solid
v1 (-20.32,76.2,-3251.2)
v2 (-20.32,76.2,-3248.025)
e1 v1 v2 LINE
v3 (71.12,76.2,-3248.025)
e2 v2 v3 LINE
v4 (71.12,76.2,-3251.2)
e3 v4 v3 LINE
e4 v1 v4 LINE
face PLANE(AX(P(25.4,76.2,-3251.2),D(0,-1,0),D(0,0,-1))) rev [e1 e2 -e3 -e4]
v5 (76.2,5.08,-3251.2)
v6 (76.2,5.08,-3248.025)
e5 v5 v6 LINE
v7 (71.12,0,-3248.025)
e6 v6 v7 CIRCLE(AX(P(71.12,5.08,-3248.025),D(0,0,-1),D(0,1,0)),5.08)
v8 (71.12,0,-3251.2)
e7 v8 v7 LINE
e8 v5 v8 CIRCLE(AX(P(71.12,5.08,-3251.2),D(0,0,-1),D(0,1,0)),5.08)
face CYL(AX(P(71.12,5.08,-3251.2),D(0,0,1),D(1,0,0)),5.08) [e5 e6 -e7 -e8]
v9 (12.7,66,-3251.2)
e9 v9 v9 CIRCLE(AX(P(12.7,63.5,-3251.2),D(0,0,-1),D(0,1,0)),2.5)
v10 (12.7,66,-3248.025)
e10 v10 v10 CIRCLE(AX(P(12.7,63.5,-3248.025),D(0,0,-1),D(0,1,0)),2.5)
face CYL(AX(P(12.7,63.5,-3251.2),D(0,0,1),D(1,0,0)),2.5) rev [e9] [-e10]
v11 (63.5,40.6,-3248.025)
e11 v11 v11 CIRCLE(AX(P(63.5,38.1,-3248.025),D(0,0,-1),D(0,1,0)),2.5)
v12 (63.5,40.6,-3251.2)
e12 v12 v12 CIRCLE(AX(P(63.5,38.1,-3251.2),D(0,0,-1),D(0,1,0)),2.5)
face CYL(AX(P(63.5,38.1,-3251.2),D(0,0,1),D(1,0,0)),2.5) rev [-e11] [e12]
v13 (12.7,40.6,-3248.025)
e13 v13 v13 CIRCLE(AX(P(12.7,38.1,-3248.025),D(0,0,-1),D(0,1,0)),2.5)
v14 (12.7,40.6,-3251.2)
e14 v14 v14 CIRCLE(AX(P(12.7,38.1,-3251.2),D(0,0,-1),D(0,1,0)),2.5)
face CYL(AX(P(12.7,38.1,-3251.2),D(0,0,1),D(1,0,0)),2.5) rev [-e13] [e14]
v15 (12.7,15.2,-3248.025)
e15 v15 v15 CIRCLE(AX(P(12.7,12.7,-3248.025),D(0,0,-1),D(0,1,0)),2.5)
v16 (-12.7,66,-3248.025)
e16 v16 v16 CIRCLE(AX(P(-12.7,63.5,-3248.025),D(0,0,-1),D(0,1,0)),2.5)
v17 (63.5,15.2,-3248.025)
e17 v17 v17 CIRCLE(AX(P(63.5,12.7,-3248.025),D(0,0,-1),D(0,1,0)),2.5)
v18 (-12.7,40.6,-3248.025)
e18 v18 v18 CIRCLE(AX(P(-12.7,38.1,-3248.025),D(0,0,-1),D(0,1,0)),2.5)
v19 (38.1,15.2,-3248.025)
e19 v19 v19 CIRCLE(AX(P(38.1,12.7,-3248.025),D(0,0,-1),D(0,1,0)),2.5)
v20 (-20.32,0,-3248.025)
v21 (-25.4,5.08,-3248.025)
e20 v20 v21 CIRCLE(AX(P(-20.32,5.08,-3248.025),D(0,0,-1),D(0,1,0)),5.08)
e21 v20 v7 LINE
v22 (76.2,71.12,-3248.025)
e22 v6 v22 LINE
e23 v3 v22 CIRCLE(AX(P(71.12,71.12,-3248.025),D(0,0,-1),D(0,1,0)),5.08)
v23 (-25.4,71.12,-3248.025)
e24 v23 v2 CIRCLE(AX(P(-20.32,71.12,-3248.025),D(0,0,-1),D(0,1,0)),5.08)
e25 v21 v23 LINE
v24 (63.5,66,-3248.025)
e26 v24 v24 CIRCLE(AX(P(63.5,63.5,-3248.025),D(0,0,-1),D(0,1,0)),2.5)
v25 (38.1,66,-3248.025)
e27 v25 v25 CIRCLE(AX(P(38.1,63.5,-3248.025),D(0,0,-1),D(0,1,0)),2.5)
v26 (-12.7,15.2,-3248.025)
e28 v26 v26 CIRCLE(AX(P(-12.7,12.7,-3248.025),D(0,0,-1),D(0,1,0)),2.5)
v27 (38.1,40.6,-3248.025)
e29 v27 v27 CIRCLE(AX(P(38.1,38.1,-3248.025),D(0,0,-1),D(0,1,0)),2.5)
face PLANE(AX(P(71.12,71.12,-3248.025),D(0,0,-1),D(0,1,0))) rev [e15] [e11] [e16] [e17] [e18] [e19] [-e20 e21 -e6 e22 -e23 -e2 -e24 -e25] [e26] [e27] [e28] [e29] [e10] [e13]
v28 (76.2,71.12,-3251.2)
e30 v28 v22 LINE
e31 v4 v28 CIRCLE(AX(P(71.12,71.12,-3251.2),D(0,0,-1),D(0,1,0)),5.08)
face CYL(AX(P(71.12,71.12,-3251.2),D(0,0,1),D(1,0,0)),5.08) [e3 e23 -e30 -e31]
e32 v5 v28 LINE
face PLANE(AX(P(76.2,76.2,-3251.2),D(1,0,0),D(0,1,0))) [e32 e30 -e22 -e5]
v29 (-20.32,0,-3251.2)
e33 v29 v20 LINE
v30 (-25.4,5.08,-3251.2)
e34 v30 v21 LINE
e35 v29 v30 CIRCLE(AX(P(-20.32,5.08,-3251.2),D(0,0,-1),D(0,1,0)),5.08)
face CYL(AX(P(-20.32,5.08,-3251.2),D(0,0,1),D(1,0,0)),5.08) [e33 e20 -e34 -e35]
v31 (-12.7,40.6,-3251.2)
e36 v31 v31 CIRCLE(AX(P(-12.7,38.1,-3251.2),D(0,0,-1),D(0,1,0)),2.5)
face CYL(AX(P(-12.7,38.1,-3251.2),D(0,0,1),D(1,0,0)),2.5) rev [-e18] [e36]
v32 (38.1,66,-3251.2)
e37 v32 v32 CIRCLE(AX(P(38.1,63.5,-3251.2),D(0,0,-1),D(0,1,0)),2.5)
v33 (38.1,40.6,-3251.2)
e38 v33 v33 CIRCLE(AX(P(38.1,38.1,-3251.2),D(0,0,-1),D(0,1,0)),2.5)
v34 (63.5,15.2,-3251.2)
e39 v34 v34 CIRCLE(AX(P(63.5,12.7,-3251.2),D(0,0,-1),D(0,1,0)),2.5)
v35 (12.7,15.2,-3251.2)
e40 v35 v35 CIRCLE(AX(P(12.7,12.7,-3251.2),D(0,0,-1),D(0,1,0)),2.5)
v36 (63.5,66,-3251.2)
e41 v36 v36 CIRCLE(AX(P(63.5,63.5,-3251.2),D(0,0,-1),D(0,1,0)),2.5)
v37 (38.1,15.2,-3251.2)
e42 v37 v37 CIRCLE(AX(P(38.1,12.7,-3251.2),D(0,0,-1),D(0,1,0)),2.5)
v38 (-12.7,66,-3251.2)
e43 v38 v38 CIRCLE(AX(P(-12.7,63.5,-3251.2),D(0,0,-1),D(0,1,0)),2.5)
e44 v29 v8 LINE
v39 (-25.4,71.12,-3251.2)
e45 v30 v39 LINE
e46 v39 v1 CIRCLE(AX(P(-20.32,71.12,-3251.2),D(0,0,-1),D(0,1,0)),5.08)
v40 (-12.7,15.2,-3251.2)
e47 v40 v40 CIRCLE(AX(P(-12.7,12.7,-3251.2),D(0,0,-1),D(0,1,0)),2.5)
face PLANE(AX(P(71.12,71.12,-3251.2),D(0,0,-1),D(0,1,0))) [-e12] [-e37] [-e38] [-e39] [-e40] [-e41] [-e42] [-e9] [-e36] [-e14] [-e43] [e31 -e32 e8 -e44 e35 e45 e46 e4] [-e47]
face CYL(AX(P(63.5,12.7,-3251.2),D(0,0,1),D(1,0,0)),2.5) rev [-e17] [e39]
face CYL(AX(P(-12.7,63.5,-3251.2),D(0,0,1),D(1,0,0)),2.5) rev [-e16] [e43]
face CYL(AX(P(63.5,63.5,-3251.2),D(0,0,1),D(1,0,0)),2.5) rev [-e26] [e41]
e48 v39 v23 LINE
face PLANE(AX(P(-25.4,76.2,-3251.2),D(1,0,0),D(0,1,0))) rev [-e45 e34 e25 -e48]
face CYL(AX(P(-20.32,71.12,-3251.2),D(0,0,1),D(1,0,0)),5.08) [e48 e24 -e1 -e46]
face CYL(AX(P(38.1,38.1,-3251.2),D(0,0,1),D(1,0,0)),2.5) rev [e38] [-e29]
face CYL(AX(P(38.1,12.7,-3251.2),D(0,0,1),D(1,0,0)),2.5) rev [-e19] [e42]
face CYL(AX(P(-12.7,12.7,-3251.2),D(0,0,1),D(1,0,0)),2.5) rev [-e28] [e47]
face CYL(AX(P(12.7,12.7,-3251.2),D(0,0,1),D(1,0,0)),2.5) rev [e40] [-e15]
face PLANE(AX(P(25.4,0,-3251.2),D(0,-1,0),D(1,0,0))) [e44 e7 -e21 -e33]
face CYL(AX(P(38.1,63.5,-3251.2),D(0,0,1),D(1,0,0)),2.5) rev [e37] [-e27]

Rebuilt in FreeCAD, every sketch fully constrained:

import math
import FreeCAD as App
import Part
import Sketcher
from FreeCAD import Vector
Q = App.Units.Quantity

doc = App.newDocument("Part")
body = doc.addObject("PartDesign::Body", "Body")

# Sketch on XY plane
sketch1 = body.newObject("Sketcher::SketchObject", "Sketch")
sketch1.AttachmentSupport = (doc.getObject("XY_Plane"), [""])
sketch1.MapMode = "FlatFace"
sketch1.AttachmentOffset = App.Placement(Vector(0, 0, -127.875 * 25.4), App.Rotation())
sketch1.addGeometry([
    Part.LineSegment(Vector(71.1, 76.2, 0), Vector(-20.3, 76.2, 0)),  # 0
    Part.ArcOfCircle(Part.Circle(Vector(-20.3, 71.1, 0), Vector(0, 0, 1), 5.1), math.radians(90), math.radians(180)),  # 1
    Part.LineSegment(Vector(-25.4, 71.1, 0), Vector(-25.4, 5.1, 0)),  # 2
    Part.ArcOfCircle(Part.Circle(Vector(-20.3, 5.1, 0), Vector(0, 0, 1), 5.1), math.radians(-180), math.radians(-90)),  # 3
    Part.LineSegment(Vector(-20.3, 0, 0), Vector(71.1, 0, 0)),  # 4
    Part.ArcOfCircle(Part.Circle(Vector(71.1, 5.1, 0), Vector(0, 0, 1), 5.1), math.radians(-90), math.radians(0)),  # 5
    Part.LineSegment(Vector(76.2, 5.1, 0), Vector(76.2, 71.1, 0)),  # 6
    Part.ArcOfCircle(Part.Circle(Vector(71.1, 71.1, 0), Vector(0, 0, 1), 5.1), math.radians(0), math.radians(90)),  # 7
    Part.Circle(Vector(-12.7, 12.7, 0), Vector(0, 0, 1), 2.5),  # 8
    Part.Circle(Vector(12.7, 12.7, 0), Vector(0, 0, 1), 2.5),  # 9
    Part.Circle(Vector(38.1, 12.7, 0), Vector(0, 0, 1), 2.5),  # 10
    Part.Circle(Vector(63.5, 12.7, 0), Vector(0, 0, 1), 2.5),  # 11
    Part.Circle(Vector(-12.7, 38.1, 0), Vector(0, 0, 1), 2.5),  # 12
    Part.Circle(Vector(12.7, 38.1, 0), Vector(0, 0, 1), 2.5),  # 13
    Part.Circle(Vector(-12.7, 63.5, 0), Vector(0, 0, 1), 2.5),  # 14
    Part.Circle(Vector(12.7, 63.5, 0), Vector(0, 0, 1), 2.5),  # 15
    Part.Circle(Vector(38.1, 38.1, 0), Vector(0, 0, 1), 2.5),  # 16
    Part.Circle(Vector(63.5, 38.1, 0), Vector(0, 0, 1), 2.5),  # 17
    Part.Circle(Vector(38.1, 63.5, 0), Vector(0, 0, 1), 2.5),  # 18
    Part.Circle(Vector(63.5, 63.5, 0), Vector(0, 0, 1), 2.5),  # 19
], False)
sketch1.addConstraint([
    Sketcher.Constraint("Tangent", 0, 2, 1, 1),
    Sketcher.Constraint("Tangent", 1, 2, 2, 1),
    Sketcher.Constraint("Tangent", 2, 2, 3, 1),
    Sketcher.Constraint("Tangent", 3, 2, 4, 1),
    Sketcher.Constraint("Tangent", 4, 2, 5, 1),
    Sketcher.Constraint("Tangent", 5, 2, 6, 1),
    Sketcher.Constraint("Tangent", 6, 2, 7, 1),
    Sketcher.Constraint("Tangent", 7, 2, 0, 1),
    Sketcher.Constraint("Horizontal", 0),
    Sketcher.Constraint("Vertical", 2),
    Sketcher.Constraint("Horizontal", 4),
    Sketcher.Constraint("Vertical", 6),
    Sketcher.Constraint("Equal", 1, 3),
    Sketcher.Constraint("Equal", 3, 5),
    Sketcher.Constraint("Equal", 5, 7),
    Sketcher.Constraint("Equal", 8, 9),
    Sketcher.Constraint("Equal", 9, 10),
    Sketcher.Constraint("Equal", 10, 11),
    Sketcher.Constraint("Equal", 11, 12),
    Sketcher.Constraint("Equal", 12, 13),
    Sketcher.Constraint("Equal", 13, 14),
    Sketcher.Constraint("Equal", 14, 15),
    Sketcher.Constraint("Equal", 15, 16),
    Sketcher.Constraint("Equal", 16, 17),
    Sketcher.Constraint("Equal", 17, 18),
    Sketcher.Constraint("Equal", 18, 19),
    Sketcher.Constraint("Symmetric", 8, 3, 9, 3, -2),
    Sketcher.Constraint("Symmetric", 12, 3, 13, 3, -2),
    Sketcher.Constraint("Symmetric", 14, 3, 15, 3, -2),
    Sketcher.Constraint("PointOnObject", 3, 2, -1),
    Sketcher.Constraint("Horizontal", 9, 3, 10, 3),
    Sketcher.Constraint("Horizontal", 10, 3, 11, 3),
    Sketcher.Constraint("Horizontal", 13, 3, 16, 3),
    Sketcher.Constraint("Horizontal", 16, 3, 17, 3),
    Sketcher.Constraint("Horizontal", 15, 3, 18, 3),
    Sketcher.Constraint("Horizontal", 18, 3, 19, 3),
    Sketcher.Constraint("Vertical", 8, 3, 12, 3),
    Sketcher.Constraint("Vertical", 12, 3, 14, 3),
    Sketcher.Constraint("Vertical", 10, 3, 16, 3),
    Sketcher.Constraint("Vertical", 11, 3, 17, 3),
    Sketcher.Constraint("Vertical", 16, 3, 18, 3),
    Sketcher.Constraint("Vertical", 17, 3, 19, 3),
    Sketcher.Constraint("Radius", 1, Q("0.2 in")),
    Sketcher.Constraint("DistanceX", 0, 2, 0, 1, Q("3.6 in")),
    Sketcher.Constraint("DistanceY", 2, 2, 2, 1, Q("2.6 in")),
    Sketcher.Constraint("DistanceX", 1, 2, -1, 1, Q("1 in")),
    Sketcher.Constraint("DistanceX", 8, 3, 9, 3, Q("1 in")),
    Sketcher.Constraint("DistanceX", 9, 3, 10, 3, Q("1 in")),
    Sketcher.Constraint("DistanceX", 10, 3, 11, 3, Q("1 in")),
    Sketcher.Constraint("DistanceY", 8, 3, 12, 3, Q("1 in")),
    Sketcher.Constraint("DistanceY", 12, 3, 14, 3, Q("1 in")),
    Sketcher.Constraint("DistanceY", -1, 1, 8, 3, Q("0.5 in")),
    Sketcher.Constraint("Diameter", 8, 5.0),
])
pad1 = body.newObject("PartDesign::Pad", "Pad")
pad1.Profile = sketch1
pad1.Length = Q("0.125 in")
pad1.Reversed = True

doc.recompute()
